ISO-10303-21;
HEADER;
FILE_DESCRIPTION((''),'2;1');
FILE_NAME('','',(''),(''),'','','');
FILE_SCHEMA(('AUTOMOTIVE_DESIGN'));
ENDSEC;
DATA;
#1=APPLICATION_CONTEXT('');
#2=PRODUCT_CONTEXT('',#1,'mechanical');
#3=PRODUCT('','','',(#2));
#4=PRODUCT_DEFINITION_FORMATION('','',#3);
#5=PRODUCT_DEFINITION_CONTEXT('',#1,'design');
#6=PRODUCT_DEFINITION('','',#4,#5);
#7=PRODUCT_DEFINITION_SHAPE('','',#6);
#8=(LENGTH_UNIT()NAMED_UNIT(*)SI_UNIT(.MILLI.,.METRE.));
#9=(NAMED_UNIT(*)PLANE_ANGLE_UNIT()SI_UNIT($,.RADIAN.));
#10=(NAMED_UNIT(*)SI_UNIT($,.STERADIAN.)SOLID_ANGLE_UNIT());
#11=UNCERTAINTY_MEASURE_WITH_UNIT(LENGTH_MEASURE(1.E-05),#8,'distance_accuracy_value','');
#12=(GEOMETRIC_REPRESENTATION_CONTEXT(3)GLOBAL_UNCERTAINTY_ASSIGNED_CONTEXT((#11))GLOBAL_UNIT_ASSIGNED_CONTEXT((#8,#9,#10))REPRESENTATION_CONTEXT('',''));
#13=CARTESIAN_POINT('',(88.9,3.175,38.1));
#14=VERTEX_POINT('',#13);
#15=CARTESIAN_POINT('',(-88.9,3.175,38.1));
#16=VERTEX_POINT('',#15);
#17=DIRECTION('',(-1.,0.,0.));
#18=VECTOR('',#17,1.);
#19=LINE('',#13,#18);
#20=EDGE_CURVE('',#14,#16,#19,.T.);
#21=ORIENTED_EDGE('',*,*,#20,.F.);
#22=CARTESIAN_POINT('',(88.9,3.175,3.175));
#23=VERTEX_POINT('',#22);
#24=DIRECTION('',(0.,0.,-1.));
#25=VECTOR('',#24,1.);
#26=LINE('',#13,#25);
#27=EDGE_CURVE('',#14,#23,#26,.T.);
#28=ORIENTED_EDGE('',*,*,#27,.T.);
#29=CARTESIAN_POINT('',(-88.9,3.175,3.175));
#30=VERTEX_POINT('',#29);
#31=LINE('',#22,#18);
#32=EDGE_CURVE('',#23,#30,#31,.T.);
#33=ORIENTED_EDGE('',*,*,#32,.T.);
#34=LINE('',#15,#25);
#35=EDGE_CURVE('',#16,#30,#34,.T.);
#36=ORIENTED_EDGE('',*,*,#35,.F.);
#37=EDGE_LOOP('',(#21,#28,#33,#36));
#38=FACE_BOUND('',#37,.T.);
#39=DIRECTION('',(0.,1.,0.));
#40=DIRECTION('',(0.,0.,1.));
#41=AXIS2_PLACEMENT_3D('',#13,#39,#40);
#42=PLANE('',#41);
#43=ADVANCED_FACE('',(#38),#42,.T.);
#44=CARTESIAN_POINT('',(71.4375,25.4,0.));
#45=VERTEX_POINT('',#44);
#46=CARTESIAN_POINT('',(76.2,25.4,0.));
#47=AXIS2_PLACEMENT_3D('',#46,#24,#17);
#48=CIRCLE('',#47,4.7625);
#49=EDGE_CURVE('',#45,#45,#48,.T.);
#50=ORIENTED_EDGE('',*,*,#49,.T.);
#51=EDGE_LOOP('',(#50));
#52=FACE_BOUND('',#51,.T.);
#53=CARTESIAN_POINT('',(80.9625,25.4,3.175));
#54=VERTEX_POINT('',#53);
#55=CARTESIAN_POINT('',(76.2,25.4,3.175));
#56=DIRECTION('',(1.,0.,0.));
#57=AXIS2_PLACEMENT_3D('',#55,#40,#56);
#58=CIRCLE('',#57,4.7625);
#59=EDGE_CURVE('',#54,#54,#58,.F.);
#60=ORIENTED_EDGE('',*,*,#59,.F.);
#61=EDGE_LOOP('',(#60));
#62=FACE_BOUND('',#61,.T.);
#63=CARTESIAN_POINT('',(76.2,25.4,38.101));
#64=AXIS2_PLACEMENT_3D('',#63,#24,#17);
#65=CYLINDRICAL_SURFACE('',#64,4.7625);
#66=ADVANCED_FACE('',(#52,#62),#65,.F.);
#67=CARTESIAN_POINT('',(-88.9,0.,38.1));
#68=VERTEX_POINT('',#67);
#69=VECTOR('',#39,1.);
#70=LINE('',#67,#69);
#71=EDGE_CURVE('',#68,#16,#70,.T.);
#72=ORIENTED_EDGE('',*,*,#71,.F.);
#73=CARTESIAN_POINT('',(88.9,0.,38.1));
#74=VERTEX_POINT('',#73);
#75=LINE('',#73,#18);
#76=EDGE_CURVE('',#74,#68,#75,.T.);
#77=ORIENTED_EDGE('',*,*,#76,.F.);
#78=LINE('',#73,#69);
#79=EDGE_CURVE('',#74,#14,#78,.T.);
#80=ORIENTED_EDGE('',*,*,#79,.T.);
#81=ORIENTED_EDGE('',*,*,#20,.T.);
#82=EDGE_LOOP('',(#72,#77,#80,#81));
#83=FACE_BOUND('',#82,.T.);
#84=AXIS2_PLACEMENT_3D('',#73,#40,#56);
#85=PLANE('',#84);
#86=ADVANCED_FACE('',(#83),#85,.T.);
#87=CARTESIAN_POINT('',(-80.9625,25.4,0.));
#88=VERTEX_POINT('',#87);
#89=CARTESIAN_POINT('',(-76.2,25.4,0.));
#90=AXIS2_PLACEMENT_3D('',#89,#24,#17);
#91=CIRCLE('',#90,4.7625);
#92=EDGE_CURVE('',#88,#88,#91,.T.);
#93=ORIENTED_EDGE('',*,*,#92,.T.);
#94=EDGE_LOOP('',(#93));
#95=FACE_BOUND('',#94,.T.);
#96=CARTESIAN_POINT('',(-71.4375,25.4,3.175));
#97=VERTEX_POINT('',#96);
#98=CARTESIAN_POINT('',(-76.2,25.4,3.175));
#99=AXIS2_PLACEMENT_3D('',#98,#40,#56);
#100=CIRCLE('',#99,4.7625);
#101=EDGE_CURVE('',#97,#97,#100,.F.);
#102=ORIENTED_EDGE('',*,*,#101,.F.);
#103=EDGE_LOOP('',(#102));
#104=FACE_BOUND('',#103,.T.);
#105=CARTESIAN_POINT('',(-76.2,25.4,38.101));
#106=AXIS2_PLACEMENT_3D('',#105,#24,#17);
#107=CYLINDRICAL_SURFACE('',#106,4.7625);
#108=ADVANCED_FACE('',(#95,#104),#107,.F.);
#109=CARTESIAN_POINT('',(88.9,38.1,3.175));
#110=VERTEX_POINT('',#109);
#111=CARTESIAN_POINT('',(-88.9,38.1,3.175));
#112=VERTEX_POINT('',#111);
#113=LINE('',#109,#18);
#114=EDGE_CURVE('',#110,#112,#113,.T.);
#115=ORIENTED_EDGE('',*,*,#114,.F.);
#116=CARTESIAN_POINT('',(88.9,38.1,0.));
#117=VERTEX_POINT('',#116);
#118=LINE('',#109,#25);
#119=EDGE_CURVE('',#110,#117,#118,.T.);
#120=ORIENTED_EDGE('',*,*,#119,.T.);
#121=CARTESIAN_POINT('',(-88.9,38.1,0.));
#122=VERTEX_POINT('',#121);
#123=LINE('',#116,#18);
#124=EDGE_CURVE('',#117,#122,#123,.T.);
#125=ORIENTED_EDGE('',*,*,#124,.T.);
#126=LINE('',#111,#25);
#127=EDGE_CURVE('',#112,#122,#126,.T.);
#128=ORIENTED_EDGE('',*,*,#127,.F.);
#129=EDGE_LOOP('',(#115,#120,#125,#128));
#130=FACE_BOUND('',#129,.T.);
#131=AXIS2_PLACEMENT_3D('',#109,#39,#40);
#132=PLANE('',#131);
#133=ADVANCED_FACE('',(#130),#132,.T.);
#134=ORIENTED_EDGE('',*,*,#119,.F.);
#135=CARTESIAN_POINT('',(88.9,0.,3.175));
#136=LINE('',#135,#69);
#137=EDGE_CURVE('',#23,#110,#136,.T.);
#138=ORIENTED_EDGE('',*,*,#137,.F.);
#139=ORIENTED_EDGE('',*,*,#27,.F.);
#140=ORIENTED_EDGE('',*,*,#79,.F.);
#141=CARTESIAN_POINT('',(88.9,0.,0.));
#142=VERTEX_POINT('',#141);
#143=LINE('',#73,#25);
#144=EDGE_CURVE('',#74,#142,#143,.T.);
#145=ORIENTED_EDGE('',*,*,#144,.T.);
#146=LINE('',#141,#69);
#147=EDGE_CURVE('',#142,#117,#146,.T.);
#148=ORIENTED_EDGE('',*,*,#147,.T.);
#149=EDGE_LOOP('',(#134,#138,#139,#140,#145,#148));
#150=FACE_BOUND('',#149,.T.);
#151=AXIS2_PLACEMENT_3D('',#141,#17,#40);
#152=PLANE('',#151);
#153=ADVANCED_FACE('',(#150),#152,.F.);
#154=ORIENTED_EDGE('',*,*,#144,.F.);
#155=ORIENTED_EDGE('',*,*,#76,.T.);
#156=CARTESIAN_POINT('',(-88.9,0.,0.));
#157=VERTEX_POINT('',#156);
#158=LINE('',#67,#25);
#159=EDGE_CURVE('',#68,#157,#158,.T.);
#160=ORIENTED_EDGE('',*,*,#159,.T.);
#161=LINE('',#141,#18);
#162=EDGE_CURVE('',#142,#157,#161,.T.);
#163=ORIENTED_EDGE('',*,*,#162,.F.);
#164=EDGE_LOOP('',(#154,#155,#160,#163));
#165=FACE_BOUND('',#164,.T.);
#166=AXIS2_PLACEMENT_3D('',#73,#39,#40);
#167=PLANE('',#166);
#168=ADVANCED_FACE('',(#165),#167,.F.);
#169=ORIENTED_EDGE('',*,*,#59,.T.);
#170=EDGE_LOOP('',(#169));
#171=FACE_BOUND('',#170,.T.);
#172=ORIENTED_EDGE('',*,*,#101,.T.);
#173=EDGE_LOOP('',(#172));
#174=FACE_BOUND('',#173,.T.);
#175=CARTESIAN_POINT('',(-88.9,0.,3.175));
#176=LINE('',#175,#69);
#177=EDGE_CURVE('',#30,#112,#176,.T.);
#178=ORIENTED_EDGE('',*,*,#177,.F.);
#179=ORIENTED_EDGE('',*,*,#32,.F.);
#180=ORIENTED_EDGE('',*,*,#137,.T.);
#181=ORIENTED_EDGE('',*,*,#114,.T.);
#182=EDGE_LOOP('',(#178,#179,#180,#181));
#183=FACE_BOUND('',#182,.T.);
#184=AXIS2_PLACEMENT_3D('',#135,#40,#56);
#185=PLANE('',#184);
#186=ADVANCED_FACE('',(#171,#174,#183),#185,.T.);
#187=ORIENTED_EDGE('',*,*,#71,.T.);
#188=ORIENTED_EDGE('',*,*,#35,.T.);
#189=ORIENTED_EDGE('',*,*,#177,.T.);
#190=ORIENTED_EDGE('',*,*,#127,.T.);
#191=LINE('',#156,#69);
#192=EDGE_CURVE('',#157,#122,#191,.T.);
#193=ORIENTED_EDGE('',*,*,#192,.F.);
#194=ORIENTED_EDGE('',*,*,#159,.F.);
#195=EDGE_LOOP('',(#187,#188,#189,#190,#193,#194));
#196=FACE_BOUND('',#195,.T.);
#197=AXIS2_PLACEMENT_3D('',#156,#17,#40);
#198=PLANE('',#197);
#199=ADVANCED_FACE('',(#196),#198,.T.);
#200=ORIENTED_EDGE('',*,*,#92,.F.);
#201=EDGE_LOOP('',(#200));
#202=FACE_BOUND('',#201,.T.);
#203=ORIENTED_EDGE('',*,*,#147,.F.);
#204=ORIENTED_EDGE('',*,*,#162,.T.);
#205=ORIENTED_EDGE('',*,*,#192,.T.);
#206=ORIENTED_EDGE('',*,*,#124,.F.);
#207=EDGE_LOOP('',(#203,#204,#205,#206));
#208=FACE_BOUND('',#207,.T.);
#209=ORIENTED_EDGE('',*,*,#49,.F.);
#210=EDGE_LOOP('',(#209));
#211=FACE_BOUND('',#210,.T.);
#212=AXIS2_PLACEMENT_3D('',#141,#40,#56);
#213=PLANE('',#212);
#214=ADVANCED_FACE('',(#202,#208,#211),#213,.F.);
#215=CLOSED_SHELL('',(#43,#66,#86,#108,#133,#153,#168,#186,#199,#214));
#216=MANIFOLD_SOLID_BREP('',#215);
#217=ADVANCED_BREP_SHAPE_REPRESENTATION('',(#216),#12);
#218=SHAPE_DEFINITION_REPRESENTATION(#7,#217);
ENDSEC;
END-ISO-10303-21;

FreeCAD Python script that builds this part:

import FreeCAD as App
import Part
import Sketcher
from FreeCAD import Vector
Q = App.Units.Quantity


def add_polygon(sketch, points):
    """Adds a closed chain of lines whose ends are joined by coincident constraints."""
    first, n = sketch.GeometryCount, len(points)
    for a, b in zip(points, points[1:] + points[:1]):
        sketch.addGeometry(Part.LineSegment(App.Vector(*a, 0), App.Vector(*b, 0)), False)
    for i in range(n):
        sketch.addConstraint(Sketcher.Constraint("Coincident", first + i, 2, first + (i + 1) % n, 1))

doc = App.newDocument("Part")
params = doc.addObject("Spreadsheet::Sheet", "Params")
for row, (alias, value) in enumerate([
    ("sketch1_width", "1.5 in"),
    ("sketch1_width2", "1.375 in"),
    ("pad1_length", "7 in"),
    ("sketch2_diameter", "0.375 in"),
    ("sketch3_diameter", "0.375 in"),
], start=1):
    params.set(f"A{row}", alias)
    params.set(f"B{row}", "=" + value)
    params.setAlias(f"B{row}", alias)

body = doc.addObject("PartDesign::Body", "Body")

# Sketch on YZ plane
sketch1 = body.newObject("Sketcher::SketchObject", "Sketch")
sketch1.AttachmentSupport = (doc.getObject("YZ_Plane"), [""])
sketch1.MapMode = "FlatFace"
add_polygon(sketch1, [(0, 38.1), (0, 0), (38.1, 0), (38.1, 3.175), (3.175, 3.175), (3.175, 38.1)])  # lines 0-5
sketch1.addConstraint([
    Sketcher.Constraint("Vertical", 0),
    Sketcher.Constraint("Horizontal", 1),
    Sketcher.Constraint("Vertical", 2),
    Sketcher.Constraint("Horizontal", 3),
    Sketcher.Constraint("Vertical", 4),
    Sketcher.Constraint("Horizontal", 5),
    Sketcher.Constraint("Coincident", 0, 2, -1, 1),
    Sketcher.Constraint("Equal", 1, 0),
    Sketcher.Constraint("Equal", 5, 2),
    Sketcher.Constraint("DistanceX", 1, 1, 1, 2, Q("1.5 in")),
    Sketcher.Constraint("DistanceX", 3, 2, 3, 1, Q("1.375 in")),
])
sketch1.setExpression("Constraints[15]", "Params.sketch1_width")
sketch1.setExpression("Constraints[16]", "Params.sketch1_width2")
pad1 = body.newObject("PartDesign::Pad", "Pad")
pad1.Profile = sketch1
pad1.setExpression("Length", "Params.pad1_length")
pad1.Midplane = True

# Sketch on XY plane
sketch2 = body.newObject("Sketcher::SketchObject", "Sketch001")
sketch2.AttachmentSupport = (doc.getObject("XY_Plane"), [""])
sketch2.MapMode = "FlatFace"
sketch2.addGeometry(Part.Circle(Vector(76.2, 25.4, 0), Vector(0, 0, 1), 4.7625), False)
sketch2.addConstraint([
    Sketcher.Constraint("Diameter", 0, Q("0.375 in")),
    Sketcher.Constraint("DistanceX", -1, 1, 0, 3, Q("3 in")),
    Sketcher.Constraint("DistanceY", -1, 1, 0, 3, Q("1 in")),
])
sketch2.setExpression("Constraints[0]", "Params.sketch2_diameter")
pocket1 = body.newObject("PartDesign::Pocket", "Pocket")
pocket1.Profile = sketch2
pocket1.Type = "UpToFirst"
pocket1.Reversed = True

# Sketch on XY plane
sketch3 = body.newObject("Sketcher::SketchObject", "Sketch002")
sketch3.AttachmentSupport = (doc.getObject("XY_Plane"), [""])
sketch3.MapMode = "FlatFace"
sketch3.addGeometry(Part.Circle(Vector(-76.2, 25.4, 0), Vector(0, 0, 1), 4.7625), False)
sketch3.addConstraint([
    Sketcher.Constraint("Diameter", 0, Q("0.375 in")),
    Sketcher.Constraint("DistanceX", 0, 3, -1, 1, Q("3 in")),
    Sketcher.Constraint("DistanceY", -1, 1, 0, 3, Q("1 in")),
])
sketch3.setExpression("Constraints[0]", "Params.sketch3_diameter")
pocket2 = body.newObject("PartDesign::Pocket", "Pocket001")
pocket2.Profile = sketch3
pocket2.Type = "UpToFirst"
pocket2.Reversed = True

doc.recompute()
